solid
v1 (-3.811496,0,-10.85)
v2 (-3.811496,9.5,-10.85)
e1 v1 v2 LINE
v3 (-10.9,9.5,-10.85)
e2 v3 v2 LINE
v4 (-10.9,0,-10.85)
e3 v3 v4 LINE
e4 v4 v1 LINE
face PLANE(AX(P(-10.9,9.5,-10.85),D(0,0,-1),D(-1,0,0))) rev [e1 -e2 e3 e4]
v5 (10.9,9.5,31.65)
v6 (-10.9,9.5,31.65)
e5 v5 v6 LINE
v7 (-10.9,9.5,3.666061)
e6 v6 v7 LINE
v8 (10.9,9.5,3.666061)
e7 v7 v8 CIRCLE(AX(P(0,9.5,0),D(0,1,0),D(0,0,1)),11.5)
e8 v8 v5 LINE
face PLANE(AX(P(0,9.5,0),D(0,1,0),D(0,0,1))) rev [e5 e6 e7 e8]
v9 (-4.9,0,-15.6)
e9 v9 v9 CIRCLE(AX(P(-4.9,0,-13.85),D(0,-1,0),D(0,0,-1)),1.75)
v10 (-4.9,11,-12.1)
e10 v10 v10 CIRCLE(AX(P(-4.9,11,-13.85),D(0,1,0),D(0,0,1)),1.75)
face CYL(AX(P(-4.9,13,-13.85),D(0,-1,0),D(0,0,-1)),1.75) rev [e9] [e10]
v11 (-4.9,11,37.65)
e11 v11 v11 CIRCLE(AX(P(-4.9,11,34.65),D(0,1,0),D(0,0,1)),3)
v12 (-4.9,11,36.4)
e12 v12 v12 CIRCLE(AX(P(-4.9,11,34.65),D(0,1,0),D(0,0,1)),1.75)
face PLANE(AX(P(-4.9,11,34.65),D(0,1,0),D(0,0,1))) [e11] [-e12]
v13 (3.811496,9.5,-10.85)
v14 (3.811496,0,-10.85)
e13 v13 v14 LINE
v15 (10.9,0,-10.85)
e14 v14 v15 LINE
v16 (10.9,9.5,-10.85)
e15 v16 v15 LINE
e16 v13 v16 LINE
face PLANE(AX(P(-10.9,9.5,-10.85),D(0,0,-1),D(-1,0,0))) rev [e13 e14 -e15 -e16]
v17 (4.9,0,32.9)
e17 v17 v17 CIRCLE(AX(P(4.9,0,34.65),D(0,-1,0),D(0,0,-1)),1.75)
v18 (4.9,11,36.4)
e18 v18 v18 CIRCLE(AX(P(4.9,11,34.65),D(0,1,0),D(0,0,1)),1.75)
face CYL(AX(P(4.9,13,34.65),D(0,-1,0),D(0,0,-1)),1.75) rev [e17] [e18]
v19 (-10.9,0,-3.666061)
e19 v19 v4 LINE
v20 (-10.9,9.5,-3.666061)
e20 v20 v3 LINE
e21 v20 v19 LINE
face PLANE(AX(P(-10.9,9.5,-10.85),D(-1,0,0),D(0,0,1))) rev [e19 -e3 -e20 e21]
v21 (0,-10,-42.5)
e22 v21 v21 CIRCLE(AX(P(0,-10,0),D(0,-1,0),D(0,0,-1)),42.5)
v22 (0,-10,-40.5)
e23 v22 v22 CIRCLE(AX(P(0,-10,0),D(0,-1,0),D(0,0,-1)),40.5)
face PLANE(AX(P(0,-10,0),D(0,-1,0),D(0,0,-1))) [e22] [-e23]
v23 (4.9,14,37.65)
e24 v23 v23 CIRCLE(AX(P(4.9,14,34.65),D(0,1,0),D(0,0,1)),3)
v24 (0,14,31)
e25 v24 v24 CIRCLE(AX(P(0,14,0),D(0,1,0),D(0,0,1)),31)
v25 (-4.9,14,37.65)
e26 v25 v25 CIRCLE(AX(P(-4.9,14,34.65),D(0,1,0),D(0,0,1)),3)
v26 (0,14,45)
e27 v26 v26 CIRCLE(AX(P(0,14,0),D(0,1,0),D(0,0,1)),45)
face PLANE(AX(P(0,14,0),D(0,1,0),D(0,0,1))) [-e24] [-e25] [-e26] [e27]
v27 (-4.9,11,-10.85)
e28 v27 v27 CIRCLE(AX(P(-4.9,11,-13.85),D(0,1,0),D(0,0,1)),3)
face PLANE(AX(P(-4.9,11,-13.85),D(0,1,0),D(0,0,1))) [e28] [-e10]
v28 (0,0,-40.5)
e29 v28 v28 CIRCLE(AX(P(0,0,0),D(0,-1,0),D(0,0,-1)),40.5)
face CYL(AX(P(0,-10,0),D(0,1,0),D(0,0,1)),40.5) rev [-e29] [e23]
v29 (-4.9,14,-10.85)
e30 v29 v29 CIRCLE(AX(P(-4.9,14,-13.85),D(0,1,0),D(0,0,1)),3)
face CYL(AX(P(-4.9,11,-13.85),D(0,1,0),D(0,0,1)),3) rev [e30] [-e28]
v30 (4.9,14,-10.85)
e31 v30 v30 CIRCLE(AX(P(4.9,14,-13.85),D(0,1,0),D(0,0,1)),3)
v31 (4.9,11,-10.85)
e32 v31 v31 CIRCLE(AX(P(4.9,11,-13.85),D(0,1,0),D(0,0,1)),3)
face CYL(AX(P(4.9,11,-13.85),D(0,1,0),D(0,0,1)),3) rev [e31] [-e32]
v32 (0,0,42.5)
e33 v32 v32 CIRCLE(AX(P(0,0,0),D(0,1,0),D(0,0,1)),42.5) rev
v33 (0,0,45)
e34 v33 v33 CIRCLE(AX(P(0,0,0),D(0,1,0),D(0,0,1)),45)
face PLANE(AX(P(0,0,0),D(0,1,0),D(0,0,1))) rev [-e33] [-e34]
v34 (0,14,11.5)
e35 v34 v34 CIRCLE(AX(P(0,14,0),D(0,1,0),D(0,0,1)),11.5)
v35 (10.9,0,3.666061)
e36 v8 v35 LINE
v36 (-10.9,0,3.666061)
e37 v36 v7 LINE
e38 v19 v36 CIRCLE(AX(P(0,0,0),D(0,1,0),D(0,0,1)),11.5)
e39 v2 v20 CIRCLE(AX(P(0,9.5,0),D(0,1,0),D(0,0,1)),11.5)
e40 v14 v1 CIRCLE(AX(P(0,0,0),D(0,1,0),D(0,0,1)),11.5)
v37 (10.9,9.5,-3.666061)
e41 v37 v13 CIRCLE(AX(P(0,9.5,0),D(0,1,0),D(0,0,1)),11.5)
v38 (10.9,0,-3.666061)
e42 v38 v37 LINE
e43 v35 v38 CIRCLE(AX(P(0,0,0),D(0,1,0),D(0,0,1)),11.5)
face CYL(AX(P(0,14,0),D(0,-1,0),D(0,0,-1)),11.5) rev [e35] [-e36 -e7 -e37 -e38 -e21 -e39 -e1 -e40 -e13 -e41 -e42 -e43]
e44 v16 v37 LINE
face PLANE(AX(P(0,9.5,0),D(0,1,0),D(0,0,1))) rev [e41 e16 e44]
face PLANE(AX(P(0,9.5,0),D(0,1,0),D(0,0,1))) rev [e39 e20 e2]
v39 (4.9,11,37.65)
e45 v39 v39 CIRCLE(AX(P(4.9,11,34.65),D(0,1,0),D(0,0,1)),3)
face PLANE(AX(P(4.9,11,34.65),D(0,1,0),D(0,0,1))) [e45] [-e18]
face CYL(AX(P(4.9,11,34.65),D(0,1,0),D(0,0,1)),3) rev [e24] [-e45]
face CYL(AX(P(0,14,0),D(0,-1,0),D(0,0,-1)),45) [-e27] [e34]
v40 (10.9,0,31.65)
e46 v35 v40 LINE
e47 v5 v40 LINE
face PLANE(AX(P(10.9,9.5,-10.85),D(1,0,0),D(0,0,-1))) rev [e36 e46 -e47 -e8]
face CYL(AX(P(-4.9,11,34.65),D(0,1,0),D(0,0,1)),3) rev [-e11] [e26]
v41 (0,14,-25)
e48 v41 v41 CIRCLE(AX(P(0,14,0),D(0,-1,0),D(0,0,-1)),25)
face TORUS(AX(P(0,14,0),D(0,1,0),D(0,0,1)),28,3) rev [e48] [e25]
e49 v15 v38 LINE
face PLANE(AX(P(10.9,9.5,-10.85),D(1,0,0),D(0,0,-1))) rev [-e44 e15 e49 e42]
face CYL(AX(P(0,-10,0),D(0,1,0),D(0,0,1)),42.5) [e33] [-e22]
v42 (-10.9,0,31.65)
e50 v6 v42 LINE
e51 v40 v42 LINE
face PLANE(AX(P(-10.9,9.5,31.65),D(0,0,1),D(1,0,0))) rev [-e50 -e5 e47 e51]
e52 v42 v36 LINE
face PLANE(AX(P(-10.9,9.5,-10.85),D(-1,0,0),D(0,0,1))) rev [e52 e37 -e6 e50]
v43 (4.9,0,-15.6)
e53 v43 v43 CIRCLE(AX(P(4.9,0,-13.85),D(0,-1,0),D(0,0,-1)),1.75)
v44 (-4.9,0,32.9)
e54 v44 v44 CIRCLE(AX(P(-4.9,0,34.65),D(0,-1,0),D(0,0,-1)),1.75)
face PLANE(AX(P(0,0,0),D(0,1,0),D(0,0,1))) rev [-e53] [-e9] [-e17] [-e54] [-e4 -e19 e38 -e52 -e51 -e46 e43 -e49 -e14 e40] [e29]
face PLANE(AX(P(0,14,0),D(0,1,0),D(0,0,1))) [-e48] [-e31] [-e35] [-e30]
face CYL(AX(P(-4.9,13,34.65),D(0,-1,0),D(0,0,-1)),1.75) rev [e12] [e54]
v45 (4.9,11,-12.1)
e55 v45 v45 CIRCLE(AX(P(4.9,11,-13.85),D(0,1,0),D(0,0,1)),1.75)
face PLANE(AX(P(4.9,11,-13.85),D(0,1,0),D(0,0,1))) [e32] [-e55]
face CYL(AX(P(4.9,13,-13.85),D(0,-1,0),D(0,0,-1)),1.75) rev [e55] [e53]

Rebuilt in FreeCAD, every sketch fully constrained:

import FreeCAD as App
import Part
import Sketcher
from FreeCAD import Vector
Q = App.Units.Quantity

doc = App.newDocument("Part")
params = doc.addObject("Spreadsheet::Sheet", "Params")
for row, (alias, value) in enumerate([
    ("sketch1_diameter", "90 mm"),
    ("sketch1_diameter2", "23 mm"),
    ("pad1_length", "14 mm"),
    ("sketch2_diameter", "6 mm"),
    ("groove_angle", "360 deg"),
    ("sketch3_diameter", "6 mm"),
    ("pocket1_length", "3 mm"),
    ("sketch4_diameter", "3.5 mm"),
    ("pocket2_length", "13 mm"),
    ("sketch5_width", "21.8 mm"),
    ("sketch5_height", "42.5 mm"),
    ("pocket3_length", "9.5 mm"),
    ("sketch6_diameter", "85 mm"),
    ("sketch6_diameter2", "81 mm"),
    ("pad2_length", "10 mm"),
], start=1):
    params.set(f"A{row}", alias)
    params.set(f"B{row}", "=" + value)
    params.setAlias(f"B{row}", alias)

body = doc.addObject("PartDesign::Body", "Body")

# Sketch on XZ plane
sketch1 = body.newObject("Sketcher::SketchObject", "Sketch")
sketch1.AttachmentSupport = (doc.getObject("XZ_Plane"), [""])
sketch1.MapMode = "FlatFace"
sketch1.addGeometry([
    Part.Circle(Vector(0, 0, 0), Vector(0, 0, 1), 45),
    Part.Circle(Vector(0, 0, 0), Vector(0, 0, 1), 11.5),
], False)
sketch1.addConstraint([
    Sketcher.Constraint("Coincident", 0, 3, -1, 1),
    Sketcher.Constraint("Coincident", 1, 3, -1, 1),
    Sketcher.Constraint("Diameter", 0, Q("90 mm")),
    Sketcher.Constraint("Diameter", 1, Q("23 mm")),
])
sketch1.setExpression("Constraints[2]", "Params.sketch1_diameter")
sketch1.setExpression("Constraints[3]", "Params.sketch1_diameter2")
pad1 = body.newObject("PartDesign::Pad", "Pad")
pad1.Profile = sketch1
pad1.setExpression("Length", "Params.pad1_length")
pad1.Reversed = True

# Sketch on XY plane
sketch2 = body.newObject("Sketcher::SketchObject", "Sketch001")
sketch2.AttachmentSupport = (doc.getObject("XY_Plane"), [""])
sketch2.MapMode = "FlatFace"
sketch2.addGeometry(Part.Circle(Vector(-28, 14, 0), Vector(0, 0, 1), 3), False)
sketch2.addConstraint([
    Sketcher.Constraint("Diameter", 0, Q("6 mm")),
    Sketcher.Constraint("DistanceX", 0, 3, -1, 1, Q("28 mm")),
    Sketcher.Constraint("DistanceY", -1, 1, 0, 3, Q("14 mm")),
])
sketch2.setExpression("Constraints[0]", "Params.sketch2_diameter")
groove = body.newObject("PartDesign::Groove", "Groove")
groove.Profile = sketch2
groove.ReferenceAxis = (sketch2, ["V_Axis"])
groove.setExpression("Angle", "Params.groove_angle")

# Sketch on XZ plane
sketch3 = body.newObject("Sketcher::SketchObject", "Sketch002")
sketch3.AttachmentSupport = (doc.getObject("XZ_Plane"), [""])
sketch3.MapMode = "FlatFace"
sketch3.AttachmentOffset = App.Placement(Vector(0, 0, -14), App.Rotation())
sketch3.addGeometry([
    Part.Circle(Vector(-4.9, 34.65, 0), Vector(0, 0, 1), 3),
    Part.Circle(Vector(4.9, 34.65, 0), Vector(0, 0, 1), 3),
    Part.Circle(Vector(-4.9, -13.85, 0), Vector(0, 0, 1), 3),
    Part.Circle(Vector(4.9, -13.85, 0), Vector(0, 0, 1), 3),
], False)
sketch3.addConstraint([
    Sketcher.Constraint("Equal", 0, 1),
    Sketcher.Constraint("Equal", 1, 2),
    Sketcher.Constraint("Equal", 2, 3),
    Sketcher.Constraint("Symmetric", 0, 3, 1, 3, -2),
    Sketcher.Constraint("Symmetric", 2, 3, 3, 3, -2),
    Sketcher.Constraint("Vertical", 0, 3, 2, 3),
    Sketcher.Constraint("Diameter", 0, Q("6 mm")),
    Sketcher.Constraint("DistanceX", 0, 3, -1, 1, Q("4.9 mm")),
    Sketcher.Constraint("DistanceY", 2, 3, 0, 3, Q("48.5 mm")),
    Sketcher.Constraint("DistanceY", -1, 1, 0, 3, Q("34.65 mm")),
])
sketch3.setExpression("Constraints[6]", "Params.sketch3_diameter")
pocket1 = body.newObject("PartDesign::Pocket", "Pocket")
pocket1.Profile = sketch3
pocket1.setExpression("Length", "Params.pocket1_length")
pocket1.Reversed = True

# Sketch on XZ plane
sketch4 = body.newObject("Sketcher::SketchObject", "Sketch003")
sketch4.AttachmentSupport = (doc.getObject("XZ_Plane"), [""])
sketch4.MapMode = "FlatFace"
sketch4.addGeometry([
    Part.Circle(Vector(4.9, 34.65, 0), Vector(0, 0, 1), 1.75),
    Part.Circle(Vector(-4.9, 34.65, 0), Vector(0, 0, 1), 1.75),
    Part.Circle(Vector(4.9, -13.85, 0), Vector(0, 0, 1), 1.75),
    Part.Circle(Vector(-4.9, -13.85, 0), Vector(0, 0, 1), 1.75),
], False)
sketch4.addConstraint([
    Sketcher.Constraint("Equal", 0, 1),
    Sketcher.Constraint("Equal", 1, 2),
    Sketcher.Constraint("Equal", 2, 3),
    Sketcher.Constraint("Symmetric", 0, 3, 1, 3, -2),
    Sketcher.Constraint("Symmetric", 2, 3, 3, 3, -2),
    Sketcher.Constraint("Vertical", 0, 3, 2, 3),
    Sketcher.Constraint("Diameter", 0, Q("3.5 mm")),
    Sketcher.Constraint("DistanceX", -1, 1, 0, 3, Q("4.9 mm")),
    Sketcher.Constraint("DistanceY", 2, 3, 0, 3, Q("48.5 mm")),
    Sketcher.Constraint("DistanceY", -1, 1, 0, 3, Q("34.65 mm")),
])
sketch4.setExpression("Constraints[6]", "Params.sketch4_diameter")
pocket2 = body.newObject("PartDesign::Pocket", "Pocket001")
pocket2.Profile = sketch4
pocket2.setExpression("Length", "Params.pocket2_length")

# Sketch on XZ plane
sketch5 = body.newObject("Sketcher::SketchObject", "Sketch004")
sketch5.AttachmentSupport = (doc.getObject("XZ_Plane"), [""])
sketch5.MapMode = "FlatFace"
sketch5.addGeometry([
    Part.LineSegment(Vector(-10.9, 31.65, 0), Vector(-10.9, -10.85, 0)),
    Part.LineSegment(Vector(-10.9, -10.85, 0), Vector(10.9, -10.85, 0)),
    Part.LineSegment(Vector(10.9, -10.85, 0), Vector(10.9, 31.65, 0)),
    Part.LineSegment(Vector(10.9, 31.65, 0), Vector(-10.9, 31.65, 0)),
], False)
sketch5.addConstraint([
    Sketcher.Constraint("Coincident", 0, 2, 1, 1),
    Sketcher.Constraint("Coincident", 1, 2, 2, 1),
    Sketcher.Constraint("Coincident", 2, 2, 3, 1),
    Sketcher.Constraint("Coincident", 3, 2, 0, 1),
    Sketcher.Constraint("Vertical", 0),
    Sketcher.Constraint("Horizontal", 1),
    Sketcher.Constraint("Vertical", 2),
    Sketcher.Constraint("Horizontal", 3),
    Sketcher.Constraint("DistanceX", 1, 1, 1, 2, Q("21.8 mm")),
    Sketcher.Constraint("DistanceY", 0, 2, 0, 1, Q("42.5 mm")),
    Sketcher.Constraint("DistanceX", 0, 2, -1, 1, Q("10.9 mm")),
    Sketcher.Constraint("DistanceY", 0, 2, -1, 1, Q("10.85 mm")),
])
sketch5.setExpression("Constraints[8]", "Params.sketch5_width")
sketch5.setExpression("Constraints[9]", "Params.sketch5_height")
pocket3 = body.newObject("PartDesign::Pocket", "Pocket002")
pocket3.Profile = sketch5
pocket3.setExpression("Length", "Params.pocket3_length")

# Sketch on XZ plane
sketch6 = body.newObject("Sketcher::SketchObject", "Sketch005")
sketch6.AttachmentSupport = (doc.getObject("XZ_Plane"), [""])
sketch6.MapMode = "FlatFace"
sketch6.addGeometry([
    Part.Circle(Vector(0, 0, 0), Vector(0, 0, 1), 42.5),
    Part.Circle(Vector(0, 0, 0), Vector(0, 0, 1), 40.5),
], False)
sketch6.addConstraint([
    Sketcher.Constraint("Coincident", 0, 3, -1, 1),
    Sketcher.Constraint("Coincident", 1, 3, -1, 1),
    Sketcher.Constraint("Diameter", 0, Q("85 mm")),
    Sketcher.Constraint("Diameter", 1, Q("81 mm")),
])
sketch6.setExpression("Constraints[2]", "Params.sketch6_diameter")
sketch6.setExpression("Constraints[3]", "Params.sketch6_diameter2")
pad2 = body.newObject("PartDesign::Pad", "Pad001")
pad2.Profile = sketch6
pad2.setExpression("Length", "Params.pad2_length")

doc.recompute()
